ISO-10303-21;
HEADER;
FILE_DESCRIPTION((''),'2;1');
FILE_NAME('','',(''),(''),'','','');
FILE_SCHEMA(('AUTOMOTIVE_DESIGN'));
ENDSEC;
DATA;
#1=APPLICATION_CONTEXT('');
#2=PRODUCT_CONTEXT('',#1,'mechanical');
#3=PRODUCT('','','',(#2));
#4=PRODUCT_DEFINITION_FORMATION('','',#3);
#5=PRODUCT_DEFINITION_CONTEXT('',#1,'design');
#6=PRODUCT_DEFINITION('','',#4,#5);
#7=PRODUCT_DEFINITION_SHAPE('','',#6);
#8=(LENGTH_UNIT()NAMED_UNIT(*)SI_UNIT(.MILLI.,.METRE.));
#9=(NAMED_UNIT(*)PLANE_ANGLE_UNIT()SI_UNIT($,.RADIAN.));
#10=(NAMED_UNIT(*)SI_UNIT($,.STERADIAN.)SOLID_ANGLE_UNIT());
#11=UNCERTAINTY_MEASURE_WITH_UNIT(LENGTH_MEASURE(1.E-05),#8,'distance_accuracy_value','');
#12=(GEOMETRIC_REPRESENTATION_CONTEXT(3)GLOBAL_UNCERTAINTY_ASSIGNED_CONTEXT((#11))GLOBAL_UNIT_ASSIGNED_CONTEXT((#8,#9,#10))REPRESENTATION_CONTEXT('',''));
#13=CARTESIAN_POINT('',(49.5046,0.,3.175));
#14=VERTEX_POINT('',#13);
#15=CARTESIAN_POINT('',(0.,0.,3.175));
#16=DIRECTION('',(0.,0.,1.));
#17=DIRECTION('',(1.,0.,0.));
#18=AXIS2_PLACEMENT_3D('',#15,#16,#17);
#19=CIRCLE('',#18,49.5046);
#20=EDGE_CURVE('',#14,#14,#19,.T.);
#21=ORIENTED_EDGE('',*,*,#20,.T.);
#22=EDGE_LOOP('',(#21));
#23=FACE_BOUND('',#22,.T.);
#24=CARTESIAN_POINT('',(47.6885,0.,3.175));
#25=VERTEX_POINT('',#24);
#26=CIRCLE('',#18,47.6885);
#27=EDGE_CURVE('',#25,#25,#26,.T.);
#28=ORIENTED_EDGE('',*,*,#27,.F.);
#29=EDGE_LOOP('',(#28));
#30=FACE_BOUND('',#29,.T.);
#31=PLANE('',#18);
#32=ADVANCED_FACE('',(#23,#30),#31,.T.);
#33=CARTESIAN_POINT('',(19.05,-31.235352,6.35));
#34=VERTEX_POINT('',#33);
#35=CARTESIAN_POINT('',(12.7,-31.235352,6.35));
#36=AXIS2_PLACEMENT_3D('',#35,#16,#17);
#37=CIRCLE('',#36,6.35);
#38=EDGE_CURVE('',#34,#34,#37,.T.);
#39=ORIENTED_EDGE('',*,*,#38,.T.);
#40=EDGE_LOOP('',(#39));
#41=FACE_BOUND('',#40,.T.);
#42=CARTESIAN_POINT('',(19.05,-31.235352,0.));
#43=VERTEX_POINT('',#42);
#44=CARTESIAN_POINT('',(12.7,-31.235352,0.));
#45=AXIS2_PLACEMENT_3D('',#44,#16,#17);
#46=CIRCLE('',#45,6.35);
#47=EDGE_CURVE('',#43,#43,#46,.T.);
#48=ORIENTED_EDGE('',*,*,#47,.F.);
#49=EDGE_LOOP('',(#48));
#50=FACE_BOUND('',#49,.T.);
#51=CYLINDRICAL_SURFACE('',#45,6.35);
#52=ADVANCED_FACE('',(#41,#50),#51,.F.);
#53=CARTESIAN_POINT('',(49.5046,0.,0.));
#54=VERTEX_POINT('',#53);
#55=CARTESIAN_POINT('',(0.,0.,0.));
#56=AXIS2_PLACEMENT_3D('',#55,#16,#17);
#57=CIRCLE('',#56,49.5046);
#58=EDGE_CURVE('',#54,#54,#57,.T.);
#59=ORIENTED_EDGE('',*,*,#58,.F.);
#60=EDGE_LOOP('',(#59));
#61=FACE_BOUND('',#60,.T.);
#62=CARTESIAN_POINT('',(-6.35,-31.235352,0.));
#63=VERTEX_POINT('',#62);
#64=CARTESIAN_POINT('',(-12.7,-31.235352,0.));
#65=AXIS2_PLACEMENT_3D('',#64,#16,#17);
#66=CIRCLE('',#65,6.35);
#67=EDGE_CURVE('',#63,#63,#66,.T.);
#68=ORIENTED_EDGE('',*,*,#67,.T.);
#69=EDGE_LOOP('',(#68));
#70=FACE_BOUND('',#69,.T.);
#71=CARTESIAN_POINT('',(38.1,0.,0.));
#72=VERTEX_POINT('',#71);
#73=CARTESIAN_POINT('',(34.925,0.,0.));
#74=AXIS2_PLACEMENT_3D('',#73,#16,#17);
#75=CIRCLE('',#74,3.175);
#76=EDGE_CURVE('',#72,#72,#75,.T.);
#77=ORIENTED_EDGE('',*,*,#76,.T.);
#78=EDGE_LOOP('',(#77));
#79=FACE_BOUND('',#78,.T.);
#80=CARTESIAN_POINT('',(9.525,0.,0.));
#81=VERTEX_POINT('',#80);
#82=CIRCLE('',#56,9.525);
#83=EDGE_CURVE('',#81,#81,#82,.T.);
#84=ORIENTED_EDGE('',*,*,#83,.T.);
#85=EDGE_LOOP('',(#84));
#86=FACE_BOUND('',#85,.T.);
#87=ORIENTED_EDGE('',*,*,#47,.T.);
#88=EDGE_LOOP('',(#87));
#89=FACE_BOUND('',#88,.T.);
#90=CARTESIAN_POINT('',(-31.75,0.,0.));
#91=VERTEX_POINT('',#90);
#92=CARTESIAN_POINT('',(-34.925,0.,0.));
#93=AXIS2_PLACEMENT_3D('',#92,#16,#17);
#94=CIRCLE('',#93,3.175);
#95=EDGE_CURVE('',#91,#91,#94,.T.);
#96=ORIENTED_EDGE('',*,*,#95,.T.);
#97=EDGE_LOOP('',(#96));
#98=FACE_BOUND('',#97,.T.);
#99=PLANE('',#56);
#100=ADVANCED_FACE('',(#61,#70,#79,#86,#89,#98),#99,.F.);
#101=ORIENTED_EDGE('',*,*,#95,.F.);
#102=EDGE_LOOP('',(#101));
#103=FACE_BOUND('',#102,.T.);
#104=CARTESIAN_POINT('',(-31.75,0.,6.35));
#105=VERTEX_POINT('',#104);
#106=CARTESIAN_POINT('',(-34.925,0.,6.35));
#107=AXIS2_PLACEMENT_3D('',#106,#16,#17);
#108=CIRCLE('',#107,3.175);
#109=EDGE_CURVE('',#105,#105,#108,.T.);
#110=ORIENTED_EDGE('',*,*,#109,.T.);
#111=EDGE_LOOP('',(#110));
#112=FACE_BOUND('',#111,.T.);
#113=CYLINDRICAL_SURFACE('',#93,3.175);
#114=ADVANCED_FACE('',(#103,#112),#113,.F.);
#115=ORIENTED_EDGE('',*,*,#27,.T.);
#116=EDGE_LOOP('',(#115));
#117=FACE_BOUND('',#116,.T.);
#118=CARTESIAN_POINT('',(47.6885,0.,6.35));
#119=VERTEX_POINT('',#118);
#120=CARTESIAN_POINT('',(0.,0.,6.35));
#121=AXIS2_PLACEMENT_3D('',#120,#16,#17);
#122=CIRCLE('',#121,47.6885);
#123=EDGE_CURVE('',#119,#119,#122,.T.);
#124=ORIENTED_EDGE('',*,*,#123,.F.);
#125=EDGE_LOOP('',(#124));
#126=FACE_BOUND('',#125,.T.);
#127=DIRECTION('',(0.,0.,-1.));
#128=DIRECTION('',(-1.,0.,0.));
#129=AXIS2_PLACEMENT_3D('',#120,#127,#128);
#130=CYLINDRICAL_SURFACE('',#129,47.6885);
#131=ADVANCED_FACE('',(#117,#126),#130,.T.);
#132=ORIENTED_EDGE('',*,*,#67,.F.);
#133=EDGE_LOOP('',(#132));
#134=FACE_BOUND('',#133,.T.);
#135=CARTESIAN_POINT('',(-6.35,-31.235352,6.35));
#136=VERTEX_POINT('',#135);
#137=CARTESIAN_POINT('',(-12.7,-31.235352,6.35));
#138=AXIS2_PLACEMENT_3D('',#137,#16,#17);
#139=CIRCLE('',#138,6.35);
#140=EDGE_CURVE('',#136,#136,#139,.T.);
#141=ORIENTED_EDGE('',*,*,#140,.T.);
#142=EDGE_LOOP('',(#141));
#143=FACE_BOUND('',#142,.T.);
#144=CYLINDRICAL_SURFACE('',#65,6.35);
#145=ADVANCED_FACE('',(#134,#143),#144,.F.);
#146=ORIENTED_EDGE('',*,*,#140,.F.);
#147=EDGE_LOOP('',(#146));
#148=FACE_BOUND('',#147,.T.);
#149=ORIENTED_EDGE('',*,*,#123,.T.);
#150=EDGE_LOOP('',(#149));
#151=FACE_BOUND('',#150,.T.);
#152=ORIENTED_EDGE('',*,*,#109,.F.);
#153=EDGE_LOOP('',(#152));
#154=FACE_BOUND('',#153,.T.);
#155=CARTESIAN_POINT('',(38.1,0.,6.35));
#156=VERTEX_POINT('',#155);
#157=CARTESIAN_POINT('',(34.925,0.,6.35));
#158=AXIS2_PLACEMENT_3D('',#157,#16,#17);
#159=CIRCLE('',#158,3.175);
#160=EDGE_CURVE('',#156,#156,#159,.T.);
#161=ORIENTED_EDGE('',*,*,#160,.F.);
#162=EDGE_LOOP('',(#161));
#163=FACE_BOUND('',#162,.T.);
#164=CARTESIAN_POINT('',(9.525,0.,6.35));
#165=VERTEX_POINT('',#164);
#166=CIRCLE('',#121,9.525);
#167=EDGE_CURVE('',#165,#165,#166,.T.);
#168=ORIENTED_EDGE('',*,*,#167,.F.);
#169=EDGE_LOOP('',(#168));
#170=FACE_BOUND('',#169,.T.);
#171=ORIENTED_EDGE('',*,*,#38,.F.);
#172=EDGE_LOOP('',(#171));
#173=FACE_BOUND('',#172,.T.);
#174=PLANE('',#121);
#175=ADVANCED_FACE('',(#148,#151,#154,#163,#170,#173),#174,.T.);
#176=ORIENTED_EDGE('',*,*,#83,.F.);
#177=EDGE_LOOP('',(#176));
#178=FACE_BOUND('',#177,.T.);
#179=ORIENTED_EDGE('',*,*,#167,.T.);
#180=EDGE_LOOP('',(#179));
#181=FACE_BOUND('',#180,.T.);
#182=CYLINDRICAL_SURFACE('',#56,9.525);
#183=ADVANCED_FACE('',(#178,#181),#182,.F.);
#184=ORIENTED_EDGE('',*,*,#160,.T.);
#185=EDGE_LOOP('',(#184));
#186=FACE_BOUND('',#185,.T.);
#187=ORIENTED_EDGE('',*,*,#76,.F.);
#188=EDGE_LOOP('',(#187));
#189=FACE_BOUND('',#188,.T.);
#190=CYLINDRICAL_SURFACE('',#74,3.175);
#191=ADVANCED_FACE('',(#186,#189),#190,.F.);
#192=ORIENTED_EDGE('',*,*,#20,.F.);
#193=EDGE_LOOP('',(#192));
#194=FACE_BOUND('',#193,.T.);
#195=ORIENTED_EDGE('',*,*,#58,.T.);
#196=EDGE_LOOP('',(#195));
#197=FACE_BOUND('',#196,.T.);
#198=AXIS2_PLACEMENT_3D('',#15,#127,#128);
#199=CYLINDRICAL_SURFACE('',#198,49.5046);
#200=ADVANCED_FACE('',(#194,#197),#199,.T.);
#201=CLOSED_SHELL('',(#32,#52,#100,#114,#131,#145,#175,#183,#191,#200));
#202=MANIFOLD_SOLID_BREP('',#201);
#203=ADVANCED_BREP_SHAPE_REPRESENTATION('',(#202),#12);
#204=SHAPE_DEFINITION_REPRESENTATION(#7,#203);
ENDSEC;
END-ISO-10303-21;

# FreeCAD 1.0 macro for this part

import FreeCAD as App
import Part
import Sketcher
Q = App.Units.Quantity

doc = App.newDocument("Part")
body = doc.addObject("PartDesign::Body", "Body")

# Sketch on XY plane
sketch1 = doc.addObject("Sketcher::SketchObject", "Sketch")
body.addObject(sketch1)
sketch1.AttachmentSupport = (doc.XY_Plane, [""])
sketch1.MapMode = "FlatFace"
sketch1.addGeometry(Part.Circle(App.Vector(0, 0, 0), App.Vector(0, 0, 1), 50), False)
sketch1.addConstraint(Sketcher.Constraint("Coincident", 0, 3, -1, 1))
sketch1.addConstraint(Sketcher.Constraint("Diameter", 0, Q("3.898 in")))
pad1 = doc.addObject("PartDesign::Pad", "Pad")
body.addObject(pad1)
pad1.Profile = sketch1
pad1.Length = Q("0.125 in")

# Sketch on XY plane
sketch2 = doc.addObject("Sketcher::SketchObject", "Sketch001")
body.addObject(sketch2)
sketch2.AttachmentSupport = (doc.XY_Plane, [""])
sketch2.MapMode = "FlatFace"
sketch2.AttachmentOffset = App.Placement(App.Vector(0, 0, 0.125 * 25.4), App.Rotation())
sketch2.addGeometry(Part.Circle(App.Vector(0, 0, 0), App.Vector(0, 0, 1), 48), False)
sketch2.addConstraint(Sketcher.Constraint("Coincident", 0, 3, -1, 1))
sketch2.addConstraint(Sketcher.Constraint("Diameter", 0, Q("3.755 in")))
pad2 = doc.addObject("PartDesign::Pad", "Pad001")
body.addObject(pad2)
pad2.Profile = sketch2
pad2.Length = Q("0.125 in")

# Sketch on XY plane
sketch3 = doc.addObject("Sketcher::SketchObject", "Sketch002")
body.addObject(sketch3)
sketch3.AttachmentSupport = (doc.XY_Plane, [""])
sketch3.MapMode = "FlatFace"
sketch3.AttachmentOffset = App.Placement(App.Vector(0, 0, 0.25 * 25.4), App.Rotation())
sketch3.addGeometry(Part.Circle(App.Vector(-12.7, -31.2, 0), App.Vector(0, 0, 1), 6.3), False)
sketch3.addGeometry(Part.Circle(App.Vector(12.7, -31.2, 0), App.Vector(0, 0, 1), 6.3), False)
sketch3.addGeometry(Part.Circle(App.Vector(-34.9, 0, 0), App.Vector(0, 0, 1), 3.2), False)
sketch3.addGeometry(Part.Circle(App.Vector(34.9, 0, 0), App.Vector(0, 0, 1), 3.2), False)
sketch3.addGeometry(Part.Circle(App.Vector(0, 0, 0), App.Vector(0, 0, 1), 9.5), False)
sketch3.addConstraint(Sketcher.Constraint("Coincident", 4, 3, -1, 1))
sketch3.addConstraint(Sketcher.Constraint("Equal", 0, 1))
sketch3.addConstraint(Sketcher.Constraint("Equal", 2, 3))
sketch3.addConstraint(Sketcher.Constraint("Symmetric", 2, 3, 3, 3, -1, 1))
sketch3.addConstraint(Sketcher.Constraint("Symmetric", 0, 3, 1, 3, -2))
sketch3.addConstraint(Sketcher.Constraint("PointOnObject", 2, 3, -1))
sketch3.addConstraint(Sketcher.Constraint("Diameter", 0, Q("0.5 in")))
sketch3.addConstraint(Sketcher.Constraint("Diameter", 2, Q("0.25 in")))
sketch3.addConstraint(Sketcher.Constraint("Diameter", 4, Q("0.75 in")))
sketch3.addConstraint(Sketcher.Constraint("DistanceX", 0, 3, 1, 3, Q("1 in")))
sketch3.addConstraint(Sketcher.Constraint("DistanceX", 2, 3, 3, 3, Q("2.75 in")))
sketch3.addConstraint(Sketcher.Constraint("DistanceY", 0, 3, -1, 1, Q("31.235352 mm")))
pocket1 = doc.addObject("PartDesign::Pocket", "Pocket")
body.addObject(pocket1)
pocket1.Profile = sketch3
pocket1.Type = "ThroughAll"

doc.recompute()
